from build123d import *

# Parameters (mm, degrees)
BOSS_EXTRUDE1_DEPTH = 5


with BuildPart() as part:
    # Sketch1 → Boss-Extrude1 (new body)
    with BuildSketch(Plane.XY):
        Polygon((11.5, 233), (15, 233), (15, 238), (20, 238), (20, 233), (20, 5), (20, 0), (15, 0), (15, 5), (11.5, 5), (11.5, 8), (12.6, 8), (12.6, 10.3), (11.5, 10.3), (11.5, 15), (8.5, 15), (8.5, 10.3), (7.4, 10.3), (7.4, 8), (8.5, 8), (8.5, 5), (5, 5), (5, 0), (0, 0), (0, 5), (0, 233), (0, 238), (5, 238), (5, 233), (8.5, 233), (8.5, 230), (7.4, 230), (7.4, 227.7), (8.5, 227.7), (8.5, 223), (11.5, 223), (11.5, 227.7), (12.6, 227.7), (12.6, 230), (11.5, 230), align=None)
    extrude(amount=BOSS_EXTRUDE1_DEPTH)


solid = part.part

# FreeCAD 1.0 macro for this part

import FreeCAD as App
import Part
import Sketcher

V = App.Vector


def add_polygon(sketch, points):
    """Adds a closed chain of lines whose ends are joined by coincident constraints."""
    first, n = sketch.GeometryCount, len(points)
    for a, b in zip(points, points[1:] + points[:1]):
        sketch.addGeometry(Part.LineSegment(App.Vector(*a, 0), App.Vector(*b, 0)), False)
    for i in range(n):
        sketch.addConstraint(Sketcher.Constraint("Coincident", first + i, 2, first + (i + 1) % n, 1))

doc = App.newDocument("Part")
body = doc.addObject("PartDesign::Body", "Body")

sketch1 = body.newObject("Sketcher::SketchObject", "Sketch")
sketch1.AttachmentSupport = (doc.getObject("XY_Plane"), [""])
sketch1.MapMode = "FlatFace"
add_polygon(sketch1, [(15, 233), (11.5, 233), (11.5, 230), (12.6, 230), (12.6, 227.7), (11.5, 227.7), (11.5, 223), (8.5, 223), (8.5, 227.7), (7.4, 227.7), (7.4, 230), (8.5, 230), (8.5, 233), (5, 233), (5, 238), (0, 238), (0, 0), (5, 0), (5, 5), (8.5, 5), (8.5, 8), (7.4, 8), (7.4, 10.3), (8.5, 10.3), (8.5, 15), (11.5, 15), (11.5, 10.3), (12.6, 10.3), (12.6, 8), (11.5, 8), (11.5, 5), (15, 5), (15, 0), (20, 0), (20, 238), (15, 238)])
sketch1.addConstraint(Sketcher.Constraint("Horizontal", 0))
sketch1.addConstraint(Sketcher.Constraint("Vertical", 1))
sketch1.addConstraint(Sketcher.Constraint("Horizontal", 2))
sketch1.addConstraint(Sketcher.Constraint("Vertical", 3))
sketch1.addConstraint(Sketcher.Constraint("Horizontal", 4))
sketch1.addConstraint(Sketcher.Constraint("Vertical", 5))
sketch1.addConstraint(Sketcher.Constraint("Horizontal", 6))
sketch1.addConstraint(Sketcher.Constraint("Vertical", 7))
sketch1.addConstraint(Sketcher.Constraint("Horizontal", 8))
sketch1.addConstraint(Sketcher.Constraint("Vertical", 9))
sketch1.addConstraint(Sketcher.Constraint("Horizontal", 10))
sketch1.addConstraint(Sketcher.Constraint("Vertical", 11))
sketch1.addConstraint(Sketcher.Constraint("Horizontal", 12))
sketch1.addConstraint(Sketcher.Constraint("Vertical", 13))
sketch1.addConstraint(Sketcher.Constraint("Horizontal", 14))
sketch1.addConstraint(Sketcher.Constraint("Vertical", 15))
sketch1.addConstraint(Sketcher.Constraint("Horizontal", 16))
sketch1.addConstraint(Sketcher.Constraint("Vertical", 17))
sketch1.addConstraint(Sketcher.Constraint("Horizontal", 18))
sketch1.addConstraint(Sketcher.Constraint("Vertical", 19))
sketch1.addConstraint(Sketcher.Constraint("Horizontal", 20))
sketch1.addConstraint(Sketcher.Constraint("Vertical", 21))
sketch1.addConstraint(Sketcher.Constraint("Horizontal", 22))
sketch1.addConstraint(Sketcher.Constraint("Vertical", 23))
sketch1.addConstraint(Sketcher.Constraint("Horizontal", 24))
sketch1.addConstraint(Sketcher.Constraint("Vertical", 25))
sketch1.addConstraint(Sketcher.Constraint("Horizontal", 26))
sketch1.addConstraint(Sketcher.Constraint("Vertical", 27))
sketch1.addConstraint(Sketcher.Constraint("Horizontal", 28))
sketch1.addConstraint(Sketcher.Constraint("Vertical", 29))
sketch1.addConstraint(Sketcher.Constraint("Horizontal", 30))
sketch1.addConstraint(Sketcher.Constraint("Vertical", 31))
sketch1.addConstraint(Sketcher.Constraint("Horizontal", 32))
sketch1.addConstraint(Sketcher.Constraint("Vertical", 33))
sketch1.addConstraint(Sketcher.Constraint("Horizontal", 34))
sketch1.addConstraint(Sketcher.Constraint("Vertical", 35))
sketch1.addConstraint(Sketcher.Constraint("Coincident", 15, 2, -1, 1))
sketch1.addConstraint(Sketcher.Constraint("PointOnObject", 31, 2, -1))
sketch1.addConstraint(Sketcher.Constraint("Horizontal", 4, 2, 7, 2))
sketch1.addConstraint(Sketcher.Constraint("Horizontal", 2, 2, 9, 2))
sketch1.addConstraint(Sketcher.Constraint("Horizontal", 0, 2, 11, 2))
sketch1.addConstraint(Sketcher.Constraint("Horizontal", 22, 2, 25, 2))
sketch1.addConstraint(Sketcher.Constraint("Horizontal", 20, 2, 27, 2))
sketch1.addConstraint(Sketcher.Constraint("Horizontal", 18, 2, 29, 2))
sketch1.addConstraint(Sketcher.Constraint("Horizontal", 14, 2, 33, 2))
sketch1.addConstraint(Sketcher.Constraint("Vertical", 1, 2, 4, 2))
sketch1.addConstraint(Sketcher.Constraint("Vertical", 7, 2, 10, 2))
sketch1.addConstraint(Sketcher.Constraint("Vertical", 13, 2, 16, 2))
sketch1.addConstraint(Sketcher.Constraint("Vertical", 11, 2, 18, 2))
sketch1.addConstraint(Sketcher.Constraint("Vertical", 9, 2, 20, 2))
sketch1.addConstraint(Sketcher.Constraint("Vertical", 19, 2, 22, 2))
sketch1.addConstraint(Sketcher.Constraint("Vertical", 5, 2, 24, 2))
sketch1.addConstraint(Sketcher.Constraint("Vertical", 3, 2, 26, 2))
sketch1.addConstraint(Sketcher.Constraint("Vertical", 25, 2, 28, 2))
sketch1.addConstraint(Sketcher.Constraint("Vertical", 31, 2, 34, 2))
sketch1.addConstraint(Sketcher.Constraint("Equal", 4, 8))
sketch1.addConstraint(Sketcher.Constraint("Equal", 0, 12))
sketch1.addConstraint(Sketcher.Constraint("Equal", 16, 32))
sketch1.addConstraint(Sketcher.Constraint("Equal", 24, 1))
sketch1.addConstraint(Sketcher.Constraint("Equal", 34, 13))
sketch1.addConstraint(Sketcher.Constraint("Equal", 13, 17))
sketch1.addConstraint(Sketcher.Constraint("Equal", 11, 19))
sketch1.addConstraint(Sketcher.Constraint("Equal", 9, 21))
sketch1.addConstraint(Sketcher.Constraint("Equal", 7, 23))
sketch1.addConstraint(Sketcher.Constraint("DistanceX", 6, 2, 6, 1, 3.0))
sketch1.addConstraint(Sketcher.Constraint("DistanceX", 14, 2, 14, 1, 5.0))
sketch1.addConstraint(Sketcher.Constraint("DistanceY", 15, 2, 15, 1, 238.0))
sketch1.addConstraint(Sketcher.Constraint("DistanceX", 0, 2, 0, 1, 3.5))
sketch1.addConstraint(Sketcher.Constraint("DistanceX", 2, 1, 2, 2, 1.1))
sketch1.addConstraint(Sketcher.Constraint("DistanceY", 3, 2, 3, 1, 2.3))
sketch1.addConstraint(Sketcher.Constraint("DistanceY", 5, 2, 5, 1, 4.7))
pad1 = body.newObject("PartDesign::Pad", "Pad")
pad1.Profile = sketch1
pad1.Length = 5

doc.recompute()
